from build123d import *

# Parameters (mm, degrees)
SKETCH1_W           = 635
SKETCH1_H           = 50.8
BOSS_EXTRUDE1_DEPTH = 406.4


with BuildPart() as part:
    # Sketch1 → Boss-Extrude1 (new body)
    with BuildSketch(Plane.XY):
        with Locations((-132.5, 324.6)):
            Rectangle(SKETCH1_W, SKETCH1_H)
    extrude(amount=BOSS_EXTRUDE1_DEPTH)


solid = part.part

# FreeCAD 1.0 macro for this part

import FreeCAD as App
import Part
import Sketcher
Q = App.Units.Quantity


def add_polygon(sketch, points):
    """Adds a closed chain of lines whose ends are joined by coincident constraints."""
    first, n = sketch.GeometryCount, len(points)
    for a, b in zip(points, points[1:] + points[:1]):
        sketch.addGeometry(Part.LineSegment(App.Vector(*a, 0), App.Vector(*b, 0)), False)
    for i in range(n):
        sketch.addConstraint(Sketcher.Constraint("Coincident", first + i, 2, first + (i + 1) % n, 1))

doc = App.newDocument("Part")
params = doc.addObject("Spreadsheet::Sheet", "Params")
for row, (alias, value) in enumerate([
    ("sketch1_width", "25 in"),
    ("sketch1_height", "2 in"),
    ("pad1_length", "16 in"),
], start=1):
    params.set(f"A{row}", alias)
    params.set(f"B{row}", "=" + value)
    params.setAlias(f"B{row}", alias)

body = doc.addObject("PartDesign::Body", "Body")

sketch1 = body.newObject("Sketcher::SketchObject", "Sketch")
sketch1.AttachmentSupport = (doc.getObject("XY_Plane"), [""])
sketch1.MapMode = "FlatFace"
add_polygon(sketch1, [(-450, 350), (-450, 299), (185, 299), (185, 350)])
sketch1.addConstraint(Sketcher.Constraint("Vertical", 0))
sketch1.addConstraint(Sketcher.Constraint("Horizontal", 1))
sketch1.addConstraint(Sketcher.Constraint("Vertical", 2))
sketch1.addConstraint(Sketcher.Constraint("Horizontal", 3))
sketch1.addConstraint(Sketcher.Constraint("DistanceX", 1, 1, 1, 2, Q("25 in")))
sketch1.addConstraint(Sketcher.Constraint("DistanceY", 0, 2, 0, 1, Q("2 in")))
sketch1.addConstraint(Sketcher.Constraint("DistanceX", 0, 2, -1, 1, 450.0))
sketch1.addConstraint(Sketcher.Constraint("DistanceY", -1, 1, 0, 2, 299.2))
sketch1.setExpression("Constraints[8]", "Params.sketch1_width")
sketch1.setExpression("Constraints[9]", "Params.sketch1_height")
pad1 = body.newObject("PartDesign::Pad", "Pad")
pad1.Profile = sketch1
pad1.setExpression("Length", "Params.pad1_length")

doc.recompute()
